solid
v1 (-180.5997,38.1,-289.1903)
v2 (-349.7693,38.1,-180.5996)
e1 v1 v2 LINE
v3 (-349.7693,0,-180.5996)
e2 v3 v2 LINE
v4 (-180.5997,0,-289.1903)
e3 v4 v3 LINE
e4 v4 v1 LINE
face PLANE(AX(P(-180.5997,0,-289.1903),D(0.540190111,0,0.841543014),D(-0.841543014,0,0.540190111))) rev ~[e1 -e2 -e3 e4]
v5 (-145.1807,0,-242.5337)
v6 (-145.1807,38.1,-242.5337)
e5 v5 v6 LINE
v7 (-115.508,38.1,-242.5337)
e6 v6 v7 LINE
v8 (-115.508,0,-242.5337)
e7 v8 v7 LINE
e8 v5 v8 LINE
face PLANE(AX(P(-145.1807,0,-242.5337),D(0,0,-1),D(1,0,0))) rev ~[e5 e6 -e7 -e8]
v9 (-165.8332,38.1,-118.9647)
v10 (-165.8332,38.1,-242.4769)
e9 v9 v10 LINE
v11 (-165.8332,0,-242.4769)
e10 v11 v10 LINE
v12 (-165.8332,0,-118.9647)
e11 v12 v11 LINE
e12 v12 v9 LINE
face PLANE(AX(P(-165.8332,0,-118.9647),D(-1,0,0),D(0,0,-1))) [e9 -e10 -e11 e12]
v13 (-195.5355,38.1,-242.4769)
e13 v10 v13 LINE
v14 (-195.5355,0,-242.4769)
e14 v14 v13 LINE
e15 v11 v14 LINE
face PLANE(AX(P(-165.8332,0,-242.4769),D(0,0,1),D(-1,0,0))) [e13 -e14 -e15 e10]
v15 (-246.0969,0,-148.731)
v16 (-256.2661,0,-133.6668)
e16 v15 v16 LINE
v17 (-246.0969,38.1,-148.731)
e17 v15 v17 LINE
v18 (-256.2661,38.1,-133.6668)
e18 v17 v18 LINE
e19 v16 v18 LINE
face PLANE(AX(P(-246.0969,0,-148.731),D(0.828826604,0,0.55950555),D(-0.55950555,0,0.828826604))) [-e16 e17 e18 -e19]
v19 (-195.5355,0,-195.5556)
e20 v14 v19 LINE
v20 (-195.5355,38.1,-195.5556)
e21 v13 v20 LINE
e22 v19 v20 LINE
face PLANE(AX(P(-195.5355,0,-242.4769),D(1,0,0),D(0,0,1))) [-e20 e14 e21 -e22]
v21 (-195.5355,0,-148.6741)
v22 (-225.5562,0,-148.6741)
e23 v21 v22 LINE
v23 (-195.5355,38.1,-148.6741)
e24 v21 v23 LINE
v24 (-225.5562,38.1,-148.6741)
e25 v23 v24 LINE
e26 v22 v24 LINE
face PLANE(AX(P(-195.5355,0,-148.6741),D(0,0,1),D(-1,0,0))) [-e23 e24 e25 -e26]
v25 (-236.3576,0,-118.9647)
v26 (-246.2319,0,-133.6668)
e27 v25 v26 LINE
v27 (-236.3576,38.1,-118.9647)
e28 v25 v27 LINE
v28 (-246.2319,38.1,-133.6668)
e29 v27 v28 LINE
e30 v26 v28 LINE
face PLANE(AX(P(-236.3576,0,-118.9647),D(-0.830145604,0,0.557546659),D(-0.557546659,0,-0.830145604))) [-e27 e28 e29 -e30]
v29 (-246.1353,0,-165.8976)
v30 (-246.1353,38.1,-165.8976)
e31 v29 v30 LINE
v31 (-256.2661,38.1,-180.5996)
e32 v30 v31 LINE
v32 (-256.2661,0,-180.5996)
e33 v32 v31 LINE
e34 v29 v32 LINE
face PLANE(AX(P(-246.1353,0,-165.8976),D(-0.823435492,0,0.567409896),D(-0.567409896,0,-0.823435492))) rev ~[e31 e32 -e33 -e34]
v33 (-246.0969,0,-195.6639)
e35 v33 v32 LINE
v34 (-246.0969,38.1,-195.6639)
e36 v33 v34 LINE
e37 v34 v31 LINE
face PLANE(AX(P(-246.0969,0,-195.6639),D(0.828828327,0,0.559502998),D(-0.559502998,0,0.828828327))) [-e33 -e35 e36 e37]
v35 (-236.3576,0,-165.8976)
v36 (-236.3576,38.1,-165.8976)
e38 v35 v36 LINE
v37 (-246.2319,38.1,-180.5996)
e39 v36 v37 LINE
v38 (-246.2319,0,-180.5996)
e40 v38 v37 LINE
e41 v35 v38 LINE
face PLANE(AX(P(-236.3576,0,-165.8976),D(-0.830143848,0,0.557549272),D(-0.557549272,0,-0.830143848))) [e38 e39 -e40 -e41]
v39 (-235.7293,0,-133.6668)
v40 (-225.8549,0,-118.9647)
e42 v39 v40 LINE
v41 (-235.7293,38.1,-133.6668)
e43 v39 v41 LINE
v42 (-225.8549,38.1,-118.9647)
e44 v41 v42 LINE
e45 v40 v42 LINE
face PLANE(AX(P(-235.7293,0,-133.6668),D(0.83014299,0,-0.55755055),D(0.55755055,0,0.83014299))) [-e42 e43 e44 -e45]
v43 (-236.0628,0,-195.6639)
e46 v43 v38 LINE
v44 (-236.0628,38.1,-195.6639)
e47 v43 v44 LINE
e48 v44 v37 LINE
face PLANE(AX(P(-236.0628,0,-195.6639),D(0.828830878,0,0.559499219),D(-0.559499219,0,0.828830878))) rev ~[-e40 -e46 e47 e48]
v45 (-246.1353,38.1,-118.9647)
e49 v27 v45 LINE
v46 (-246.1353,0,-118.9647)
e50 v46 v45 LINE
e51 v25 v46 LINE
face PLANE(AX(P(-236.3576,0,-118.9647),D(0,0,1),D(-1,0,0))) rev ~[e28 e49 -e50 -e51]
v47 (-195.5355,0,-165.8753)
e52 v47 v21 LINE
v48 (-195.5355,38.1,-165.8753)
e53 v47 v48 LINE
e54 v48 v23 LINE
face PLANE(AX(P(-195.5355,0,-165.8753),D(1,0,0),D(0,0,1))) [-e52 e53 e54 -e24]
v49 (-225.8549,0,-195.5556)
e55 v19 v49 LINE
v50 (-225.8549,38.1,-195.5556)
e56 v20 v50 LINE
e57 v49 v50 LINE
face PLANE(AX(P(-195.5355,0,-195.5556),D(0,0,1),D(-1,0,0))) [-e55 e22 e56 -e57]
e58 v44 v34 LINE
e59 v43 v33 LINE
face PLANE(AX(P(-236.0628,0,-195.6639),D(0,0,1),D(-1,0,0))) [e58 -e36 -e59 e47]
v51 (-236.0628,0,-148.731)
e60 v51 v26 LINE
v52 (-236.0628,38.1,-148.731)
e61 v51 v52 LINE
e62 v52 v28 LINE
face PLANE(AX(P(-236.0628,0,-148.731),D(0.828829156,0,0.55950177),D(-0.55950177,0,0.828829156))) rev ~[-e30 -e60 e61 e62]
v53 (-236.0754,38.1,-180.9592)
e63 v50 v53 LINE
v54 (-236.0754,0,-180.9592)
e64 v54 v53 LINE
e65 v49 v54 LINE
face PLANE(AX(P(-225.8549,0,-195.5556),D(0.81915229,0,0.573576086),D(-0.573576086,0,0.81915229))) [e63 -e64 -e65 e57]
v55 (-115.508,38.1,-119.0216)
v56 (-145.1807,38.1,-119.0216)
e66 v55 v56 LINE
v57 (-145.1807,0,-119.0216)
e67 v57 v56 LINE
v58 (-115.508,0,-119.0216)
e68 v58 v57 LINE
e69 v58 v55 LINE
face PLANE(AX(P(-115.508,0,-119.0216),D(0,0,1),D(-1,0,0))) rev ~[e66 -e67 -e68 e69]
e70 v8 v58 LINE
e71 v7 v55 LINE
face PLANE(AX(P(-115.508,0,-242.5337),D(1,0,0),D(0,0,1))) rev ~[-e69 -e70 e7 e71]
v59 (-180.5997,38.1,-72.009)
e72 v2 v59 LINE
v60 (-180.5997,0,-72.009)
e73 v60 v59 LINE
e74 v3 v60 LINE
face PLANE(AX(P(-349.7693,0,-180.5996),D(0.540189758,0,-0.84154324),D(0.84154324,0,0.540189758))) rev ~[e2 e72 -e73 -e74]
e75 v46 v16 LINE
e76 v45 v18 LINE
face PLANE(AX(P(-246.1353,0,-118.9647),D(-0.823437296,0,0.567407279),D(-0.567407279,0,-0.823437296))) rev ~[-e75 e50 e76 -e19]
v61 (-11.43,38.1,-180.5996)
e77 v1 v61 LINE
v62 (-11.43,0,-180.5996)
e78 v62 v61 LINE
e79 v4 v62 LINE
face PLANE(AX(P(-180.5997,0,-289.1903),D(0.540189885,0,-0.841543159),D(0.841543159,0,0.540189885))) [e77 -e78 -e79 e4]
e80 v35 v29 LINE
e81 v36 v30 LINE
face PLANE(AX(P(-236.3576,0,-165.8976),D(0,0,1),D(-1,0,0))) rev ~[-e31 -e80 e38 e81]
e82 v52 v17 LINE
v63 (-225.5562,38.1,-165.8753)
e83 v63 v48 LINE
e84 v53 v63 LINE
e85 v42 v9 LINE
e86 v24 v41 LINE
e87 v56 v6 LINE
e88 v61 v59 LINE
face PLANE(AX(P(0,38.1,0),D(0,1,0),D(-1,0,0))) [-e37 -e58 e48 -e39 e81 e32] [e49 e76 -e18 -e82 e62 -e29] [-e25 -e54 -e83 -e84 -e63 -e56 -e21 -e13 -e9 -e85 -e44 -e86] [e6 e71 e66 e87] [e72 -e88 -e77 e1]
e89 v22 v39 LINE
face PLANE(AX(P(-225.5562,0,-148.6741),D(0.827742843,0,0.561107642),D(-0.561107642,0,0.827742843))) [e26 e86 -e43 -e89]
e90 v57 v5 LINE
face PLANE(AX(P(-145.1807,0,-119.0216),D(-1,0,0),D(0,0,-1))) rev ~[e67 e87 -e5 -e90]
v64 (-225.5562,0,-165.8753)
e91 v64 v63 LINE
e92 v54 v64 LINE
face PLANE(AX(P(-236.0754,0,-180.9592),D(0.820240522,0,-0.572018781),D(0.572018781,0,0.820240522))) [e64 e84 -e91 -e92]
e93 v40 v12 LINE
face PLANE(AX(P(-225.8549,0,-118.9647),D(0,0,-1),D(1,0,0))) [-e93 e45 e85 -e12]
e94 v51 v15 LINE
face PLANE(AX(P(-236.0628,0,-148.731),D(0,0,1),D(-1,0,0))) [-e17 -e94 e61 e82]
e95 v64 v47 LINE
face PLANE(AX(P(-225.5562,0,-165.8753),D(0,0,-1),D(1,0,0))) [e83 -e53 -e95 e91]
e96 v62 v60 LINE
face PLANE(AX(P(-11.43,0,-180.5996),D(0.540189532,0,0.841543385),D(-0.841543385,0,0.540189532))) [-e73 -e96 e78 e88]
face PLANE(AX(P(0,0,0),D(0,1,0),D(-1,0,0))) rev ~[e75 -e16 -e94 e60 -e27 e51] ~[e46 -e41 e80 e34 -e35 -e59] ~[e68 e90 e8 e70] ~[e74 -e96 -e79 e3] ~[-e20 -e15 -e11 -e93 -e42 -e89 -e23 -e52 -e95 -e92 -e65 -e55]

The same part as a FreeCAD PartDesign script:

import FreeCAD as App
import Part
import Sketcher
from FreeCAD import Vector
Q = App.Units.Quantity


def add_polygon(sketch, points):
    """Adds a closed chain of lines whose ends are joined by coincident constraints."""
    first, n = sketch.GeometryCount, len(points)
    for a, b in zip(points, points[1:] + points[:1]):
        sketch.addGeometry(Part.LineSegment(App.Vector(*a, 0), App.Vector(*b, 0)), False)
    for i in range(n):
        sketch.addConstraint(Sketcher.Constraint("Coincident", first + i, 2, first + (i + 1) % n, 1))

doc = App.newDocument("Part")
body = doc.addObject("PartDesign::Body", "Body")

# Sketch on XZ plane
sketch1 = doc.addObject("Sketcher::SketchObject", "Sketch")
body.addObject(sketch1)
sketch1.AttachmentSupport = (doc.XZ_Plane, [""])
sketch1.MapMode = "FlatFace"
add_polygon(sketch1, [(-180.5997, -72.009), (-11.43, -180.5996), (-180.5997, -289.1903), (-349.7693, -180.5996)])  # lines 0-3
add_polygon(sketch1, [(-115.508, -242.5337), (-115.508, -119.0216), (-145.1807, -119.0216), (-145.1807, -242.5337)])  # lines 4-7
add_polygon(sketch1, [(-165.8332, -242.4769), (-165.8332, -118.9647), (-225.8549, -118.9647), (-235.7293, -133.6668), (-225.5562, -148.6741), (-195.5355, -148.6741), (-195.5355, -165.8753), (-225.5562, -165.8753), (-236.0754, -180.9592), (-225.8549, -195.5556), (-195.5355, -195.5556), (-195.5355, -242.4769)])  # lines 8-19
add_polygon(sketch1, [(-246.2319, -180.5996), (-236.3576, -165.8976), (-246.1353, -165.8976), (-256.2661, -180.5996), (-246.0969, -195.6639), (-236.0628, -195.6639)])  # lines 20-25
add_polygon(sketch1, [(-246.2319, -133.6668), (-236.3576, -118.9647), (-246.1353, -118.9647), (-256.2661, -133.6668), (-246.0969, -148.731), (-236.0628, -148.731)])  # lines 26-31
sketch1.addConstraint(Sketcher.Constraint("Vertical", 4))
sketch1.addConstraint(Sketcher.Constraint("Horizontal", 5))
sketch1.addConstraint(Sketcher.Constraint("Vertical", 6))
sketch1.addConstraint(Sketcher.Constraint("Horizontal", 7))
sketch1.addConstraint(Sketcher.Constraint("Vertical", 8))
sketch1.addConstraint(Sketcher.Constraint("Horizontal", 9))
sketch1.addConstraint(Sketcher.Constraint("Horizontal", 12))
sketch1.addConstraint(Sketcher.Constraint("Vertical", 13))
sketch1.addConstraint(Sketcher.Constraint("Horizontal", 14))
sketch1.addConstraint(Sketcher.Constraint("Horizontal", 17))
sketch1.addConstraint(Sketcher.Constraint("Vertical", 18))
sketch1.addConstraint(Sketcher.Constraint("Horizontal", 19))
sketch1.addConstraint(Sketcher.Constraint("Horizontal", 21))
sketch1.addConstraint(Sketcher.Constraint("Horizontal", 24))
sketch1.addConstraint(Sketcher.Constraint("Horizontal", 27))
sketch1.addConstraint(Sketcher.Constraint("Horizontal", 30))
sketch1.addConstraint(Sketcher.Constraint("Parallel", 0, 2))
sketch1.addConstraint(Sketcher.Constraint("Parallel", 1, 3))
sketch1.addConstraint(Sketcher.Constraint("Parallel", 10, 20))
sketch1.addConstraint(Sketcher.Constraint("Parallel", 23, 25))
sketch1.addConstraint(Sketcher.Constraint("Parallel", 20, 26))
sketch1.addConstraint(Sketcher.Constraint("Parallel", 22, 28))
sketch1.addConstraint(Sketcher.Constraint("Parallel", 25, 29))
sketch1.addConstraint(Sketcher.Constraint("Parallel", 29, 31))
sketch1.addConstraint(Sketcher.Constraint("Horizontal", 0, 2, 2, 2))
sketch1.addConstraint(Sketcher.Constraint("Horizontal", 2, 2, 22, 2))
sketch1.addConstraint(Sketcher.Constraint("Horizontal", 22, 2, 25, 2))
sketch1.addConstraint(Sketcher.Constraint("Horizontal", 9, 2, 26, 2))
sketch1.addConstraint(Sketcher.Constraint("Horizontal", 10, 2, 28, 2))
sketch1.addConstraint(Sketcher.Constraint("Horizontal", 28, 2, 31, 2))
sketch1.addConstraint(Sketcher.Constraint("Vertical", 1, 2, 3, 2))
sketch1.addConstraint(Sketcher.Constraint("Vertical", 11, 2, 14, 2))
sketch1.addConstraint(Sketcher.Constraint("Vertical", 9, 2, 16, 2))
sketch1.addConstraint(Sketcher.Constraint("Vertical", 13, 2, 17, 2))
sketch1.addConstraint(Sketcher.Constraint("Vertical", 20, 2, 26, 2))
sketch1.addConstraint(Sketcher.Constraint("Vertical", 21, 2, 27, 2))
sketch1.addConstraint(Sketcher.Constraint("Vertical", 22, 2, 28, 2))
sketch1.addConstraint(Sketcher.Constraint("Vertical", 23, 2, 29, 2))
sketch1.addConstraint(Sketcher.Constraint("Equal", 6, 8))
sketch1.addConstraint(Sketcher.Constraint("DistanceX", 0, 2, -1, 1, Q("0.45 in")))
sketch1.addConstraint(Sketcher.Constraint("Angle", 16, Q("-55 deg")))
sketch1.addConstraint(Sketcher.Constraint("Angle", 15, Q("-124.8911 deg")))
sketch1.addConstraint(Sketcher.Constraint("Angle", 22, Q("-124.5698 deg")))
sketch1.addConstraint(Sketcher.Constraint("Angle", 25, Q("124.0212 deg")))
sketch1.addConstraint(Sketcher.Constraint("Distance", 15, Q("0.724 in")))
sketch1.addConstraint(Sketcher.Constraint("DistanceY", 18, 2, 18, 1, Q("1.8473 in")))
sketch1.addConstraint(Sketcher.Constraint("DistanceY", 3, 2, -1, 1, Q("2.835 in")))
sketch1.addConstraint(Sketcher.Constraint("Distance", 0, Q("7.9143 in")))
sketch1.addConstraint(Sketcher.Constraint("Distance", 11, Q("0.7138 in")))
sketch1.addConstraint(Sketcher.Constraint("DistanceX", 5, 2, 5, 1, 29.6727))
sketch1.addConstraint(Sketcher.Constraint("DistanceX", 9, 2, 9, 1, 60.0217))
sketch1.addConstraint(Sketcher.Constraint("DistanceX", 12, 1, 12, 2, 30.0207))
sketch1.addConstraint(Sketcher.Constraint("DistanceX", 17, 1, 17, 2, 30.3194))
sketch1.addConstraint(Sketcher.Constraint("DistanceX", 21, 2, 21, 1, 9.7777))
sketch1.addConstraint(Sketcher.Constraint("DistanceX", 24, 1, 24, 2, 10.034))
sketch1.addConstraint(Sketcher.Constraint("DistanceY", 4, 1, 4, 2, 123.512))
sketch1.addConstraint(Sketcher.Constraint("DistanceY", 13, 2, 13, 1, 17.2012))
sketch1.addConstraint(Sketcher.Constraint("DistanceY", 4, 2, -1, 1, Q("4.6859 in")))
sketch1.addConstraint(Sketcher.Constraint("DistanceY", 11, 2, -1, 1, Q("5.8533 in")))
sketch1.addConstraint(Sketcher.Constraint("DistanceX", 15, 2, -1, 1, Q("9.2943 in")))
sketch1.addConstraint(Sketcher.Constraint("DistanceY", 20, 2, -1, 1, Q("6.5314 in")))
sketch1.addConstraint(Sketcher.Constraint("DistanceY", 23, 2, -1, 1, Q("7.7033 in")))
sketch1.addConstraint(Sketcher.Constraint("DistanceX", 24, 2, -1, 1, Q("9.2938 in")))
sketch1.addConstraint(Sketcher.Constraint("DistanceX", 8, 2, 5, 2, Q("0.8131 in")))
pad1 = doc.addObject("PartDesign::Pad", "Pad")
body.addObject(pad1)
pad1.Profile = sketch1
pad1.Length = Q("1.5 in")
pad1.Reversed = True

doc.recompute()
